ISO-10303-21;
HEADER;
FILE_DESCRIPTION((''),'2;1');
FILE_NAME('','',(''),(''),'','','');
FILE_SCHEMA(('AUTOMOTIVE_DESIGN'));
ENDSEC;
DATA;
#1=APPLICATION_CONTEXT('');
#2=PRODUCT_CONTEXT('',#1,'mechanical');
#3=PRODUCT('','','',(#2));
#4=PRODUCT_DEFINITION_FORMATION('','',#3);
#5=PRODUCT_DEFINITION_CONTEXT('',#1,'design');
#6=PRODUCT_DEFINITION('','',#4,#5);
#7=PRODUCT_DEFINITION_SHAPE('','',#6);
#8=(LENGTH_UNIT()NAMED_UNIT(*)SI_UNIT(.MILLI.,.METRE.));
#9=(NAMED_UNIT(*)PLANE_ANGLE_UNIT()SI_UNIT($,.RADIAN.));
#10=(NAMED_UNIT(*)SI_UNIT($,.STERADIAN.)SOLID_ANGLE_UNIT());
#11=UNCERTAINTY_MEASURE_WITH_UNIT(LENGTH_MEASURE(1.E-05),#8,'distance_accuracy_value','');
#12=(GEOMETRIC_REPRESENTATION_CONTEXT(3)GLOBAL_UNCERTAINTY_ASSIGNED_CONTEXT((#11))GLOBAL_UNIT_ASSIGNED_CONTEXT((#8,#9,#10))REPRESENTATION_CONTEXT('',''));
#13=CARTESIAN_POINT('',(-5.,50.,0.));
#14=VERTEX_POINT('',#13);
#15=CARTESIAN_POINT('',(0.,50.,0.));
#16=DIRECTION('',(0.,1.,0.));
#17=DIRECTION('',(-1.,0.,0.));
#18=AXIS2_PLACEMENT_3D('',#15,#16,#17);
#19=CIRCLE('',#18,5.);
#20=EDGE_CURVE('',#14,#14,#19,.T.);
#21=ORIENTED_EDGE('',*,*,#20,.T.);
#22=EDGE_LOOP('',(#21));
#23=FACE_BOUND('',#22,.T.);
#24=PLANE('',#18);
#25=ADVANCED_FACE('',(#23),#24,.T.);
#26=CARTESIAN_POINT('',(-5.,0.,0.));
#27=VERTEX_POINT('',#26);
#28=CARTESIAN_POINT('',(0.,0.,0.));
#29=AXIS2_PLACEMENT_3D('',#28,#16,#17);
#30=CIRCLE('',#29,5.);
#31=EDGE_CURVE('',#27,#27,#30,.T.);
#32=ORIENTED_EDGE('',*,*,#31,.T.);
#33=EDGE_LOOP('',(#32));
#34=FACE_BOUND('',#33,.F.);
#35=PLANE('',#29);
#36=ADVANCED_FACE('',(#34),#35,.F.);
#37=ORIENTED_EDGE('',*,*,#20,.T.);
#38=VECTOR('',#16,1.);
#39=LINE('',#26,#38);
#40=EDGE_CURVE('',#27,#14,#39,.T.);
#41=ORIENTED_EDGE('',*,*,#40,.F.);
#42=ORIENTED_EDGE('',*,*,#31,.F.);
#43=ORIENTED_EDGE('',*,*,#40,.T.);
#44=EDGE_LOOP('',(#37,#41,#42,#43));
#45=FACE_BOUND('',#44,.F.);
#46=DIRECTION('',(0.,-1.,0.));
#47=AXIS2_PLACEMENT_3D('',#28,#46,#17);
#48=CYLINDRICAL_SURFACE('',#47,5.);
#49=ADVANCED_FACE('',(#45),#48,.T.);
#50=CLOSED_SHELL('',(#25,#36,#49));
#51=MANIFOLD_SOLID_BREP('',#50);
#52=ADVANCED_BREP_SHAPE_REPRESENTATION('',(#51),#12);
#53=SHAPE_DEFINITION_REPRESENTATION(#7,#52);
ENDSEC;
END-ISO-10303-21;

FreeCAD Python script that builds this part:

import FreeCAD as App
import Part
import Sketcher
from FreeCAD import Vector

doc = App.newDocument("Part")
body = doc.addObject("PartDesign::Body", "Body")

# Sketch on XZ plane
sketch1 = doc.addObject("Sketcher::SketchObject", "Sketch")
body.addObject(sketch1)
sketch1.AttachmentSupport = (doc.XZ_Plane, [""])
sketch1.MapMode = "FlatFace"
sketch1.addGeometry(Part.Circle(Vector(0, 0, 0), Vector(0, 0, 1), 5), False)
sketch1.addConstraint([
    Sketcher.Constraint("Coincident", 0, 3, -1, 1),
    Sketcher.Constraint("Diameter", 0, 10.0),
])
pad1 = doc.addObject("PartDesign::Pad", "Pad")
body.addObject(pad1)
pad1.Profile = sketch1
pad1.Length = 50
pad1.Reversed = True

doc.recompute()
